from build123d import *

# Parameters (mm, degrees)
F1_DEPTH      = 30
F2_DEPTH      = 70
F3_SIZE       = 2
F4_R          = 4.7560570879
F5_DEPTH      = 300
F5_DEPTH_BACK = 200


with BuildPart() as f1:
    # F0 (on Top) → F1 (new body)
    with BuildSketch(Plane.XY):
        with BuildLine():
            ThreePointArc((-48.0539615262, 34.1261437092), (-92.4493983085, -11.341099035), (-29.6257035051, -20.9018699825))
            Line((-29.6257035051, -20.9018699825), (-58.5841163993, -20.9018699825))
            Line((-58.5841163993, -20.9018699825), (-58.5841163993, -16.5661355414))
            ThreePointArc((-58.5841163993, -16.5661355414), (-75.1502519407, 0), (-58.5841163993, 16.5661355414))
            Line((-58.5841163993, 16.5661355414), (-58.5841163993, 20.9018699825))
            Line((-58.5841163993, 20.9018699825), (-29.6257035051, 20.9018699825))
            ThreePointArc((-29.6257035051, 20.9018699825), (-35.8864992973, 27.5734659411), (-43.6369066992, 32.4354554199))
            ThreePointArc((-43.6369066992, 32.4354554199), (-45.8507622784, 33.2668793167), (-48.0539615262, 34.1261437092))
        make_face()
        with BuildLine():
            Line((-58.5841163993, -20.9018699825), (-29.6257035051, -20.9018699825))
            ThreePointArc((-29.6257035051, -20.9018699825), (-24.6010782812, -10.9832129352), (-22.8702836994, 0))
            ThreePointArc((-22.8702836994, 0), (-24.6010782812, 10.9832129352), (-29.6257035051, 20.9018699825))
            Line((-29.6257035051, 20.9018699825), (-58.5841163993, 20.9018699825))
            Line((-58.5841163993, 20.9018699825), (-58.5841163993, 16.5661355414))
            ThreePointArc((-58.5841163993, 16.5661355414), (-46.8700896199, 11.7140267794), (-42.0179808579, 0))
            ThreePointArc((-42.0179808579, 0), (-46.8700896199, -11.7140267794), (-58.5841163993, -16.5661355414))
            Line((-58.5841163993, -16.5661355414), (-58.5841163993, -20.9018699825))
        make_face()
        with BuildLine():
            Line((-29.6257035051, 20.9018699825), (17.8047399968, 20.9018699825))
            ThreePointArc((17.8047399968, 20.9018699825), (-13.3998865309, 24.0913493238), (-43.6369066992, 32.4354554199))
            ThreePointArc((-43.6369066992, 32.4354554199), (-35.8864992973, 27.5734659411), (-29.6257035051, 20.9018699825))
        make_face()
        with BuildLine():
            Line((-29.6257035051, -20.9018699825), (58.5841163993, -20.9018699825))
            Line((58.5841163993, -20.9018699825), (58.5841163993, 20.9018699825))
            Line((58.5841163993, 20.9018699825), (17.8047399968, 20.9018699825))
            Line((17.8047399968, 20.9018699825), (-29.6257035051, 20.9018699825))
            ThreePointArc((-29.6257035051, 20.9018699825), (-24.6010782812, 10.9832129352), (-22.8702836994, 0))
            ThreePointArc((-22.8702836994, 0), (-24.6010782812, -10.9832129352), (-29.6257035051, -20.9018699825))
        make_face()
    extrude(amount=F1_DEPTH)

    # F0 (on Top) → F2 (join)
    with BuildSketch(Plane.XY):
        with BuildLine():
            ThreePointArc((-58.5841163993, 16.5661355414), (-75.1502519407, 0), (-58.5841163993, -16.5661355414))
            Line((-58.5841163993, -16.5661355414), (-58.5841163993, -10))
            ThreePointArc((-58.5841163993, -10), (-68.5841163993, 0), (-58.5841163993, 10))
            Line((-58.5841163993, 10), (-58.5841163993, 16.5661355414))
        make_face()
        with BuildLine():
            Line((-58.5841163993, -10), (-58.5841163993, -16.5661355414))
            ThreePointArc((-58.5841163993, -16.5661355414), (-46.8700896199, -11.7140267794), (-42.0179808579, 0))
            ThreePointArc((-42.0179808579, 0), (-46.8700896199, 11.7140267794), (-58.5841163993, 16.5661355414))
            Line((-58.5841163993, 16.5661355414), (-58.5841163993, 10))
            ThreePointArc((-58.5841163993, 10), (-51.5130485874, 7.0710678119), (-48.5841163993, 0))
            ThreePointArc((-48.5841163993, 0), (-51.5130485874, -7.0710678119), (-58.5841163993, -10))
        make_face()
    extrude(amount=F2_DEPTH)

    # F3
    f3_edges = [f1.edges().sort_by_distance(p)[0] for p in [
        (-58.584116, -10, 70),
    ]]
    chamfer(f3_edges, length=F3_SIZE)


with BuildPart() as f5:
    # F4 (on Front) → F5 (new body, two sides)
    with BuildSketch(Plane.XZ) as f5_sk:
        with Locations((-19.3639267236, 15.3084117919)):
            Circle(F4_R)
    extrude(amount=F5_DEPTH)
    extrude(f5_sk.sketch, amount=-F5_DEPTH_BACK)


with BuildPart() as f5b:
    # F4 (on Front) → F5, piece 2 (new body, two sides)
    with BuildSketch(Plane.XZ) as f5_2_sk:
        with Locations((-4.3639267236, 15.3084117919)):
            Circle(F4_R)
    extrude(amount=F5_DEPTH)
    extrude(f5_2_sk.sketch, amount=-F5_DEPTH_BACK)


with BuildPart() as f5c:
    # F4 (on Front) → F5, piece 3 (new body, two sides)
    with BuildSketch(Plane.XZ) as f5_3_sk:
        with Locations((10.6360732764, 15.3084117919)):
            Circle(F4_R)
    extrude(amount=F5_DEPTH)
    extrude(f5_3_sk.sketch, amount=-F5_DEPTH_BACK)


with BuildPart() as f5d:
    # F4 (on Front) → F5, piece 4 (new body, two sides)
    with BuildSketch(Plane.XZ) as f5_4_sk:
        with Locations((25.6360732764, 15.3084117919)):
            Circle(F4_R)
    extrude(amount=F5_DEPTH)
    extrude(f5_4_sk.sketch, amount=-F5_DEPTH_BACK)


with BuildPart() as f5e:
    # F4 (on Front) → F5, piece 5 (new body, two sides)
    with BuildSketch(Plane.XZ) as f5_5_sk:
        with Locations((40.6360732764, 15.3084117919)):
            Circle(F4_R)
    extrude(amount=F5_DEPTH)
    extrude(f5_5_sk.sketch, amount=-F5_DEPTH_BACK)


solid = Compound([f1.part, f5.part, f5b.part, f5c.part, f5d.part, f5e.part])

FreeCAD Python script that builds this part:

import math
import FreeCAD as App
import Part
import Sketcher
from FreeCAD import Vector


def edges_at(feature, points):
    """Names of the edges that pass closest to the given points."""
    edges = feature.Shape.Edges
    near = lambda p: min(range(len(edges)), key=lambda i: edges[i].distToShape(Part.Vertex(*p))[0])
    return sorted({f"Edge{near(p) + 1}" for p in points})

doc = App.newDocument("Part")
body = doc.addObject("PartDesign::Body", "Body")

# Sketch on XY plane
sketch1 = body.newObject("Sketcher::SketchObject", "Sketch")
sketch1.AttachmentSupport = (doc.getObject("XY_Plane"), [""])
sketch1.MapMode = "FlatFace"
sketch1.addGeometry([
    Part.ArcOfCircle(Part.Circle(Vector(-58.584116, 0, 0), Vector(0, 0, 1), 35.713833), math.radians(72.851572), math.radians(324.178655)),  # 0
    Part.LineSegment(Vector(-29.625704, -20.90187, 0), Vector(58.584116, -20.90187, 0)),  # 1
    Part.LineSegment(Vector(58.584116, -20.90187, 0), Vector(58.584116, 20.90187, 0)),  # 2
    Part.LineSegment(Vector(58.584116, 20.90187, 0), Vector(17.80474, 20.90187, 0)),  # 3
    Part.ArcOfCircle(Part.Circle(Vector(21.211258, 208.471631, 0), Vector(0, 0, 1), 187.600692), math.radians(-110.222777), math.radians(-91.040454)),  # 4
    Part.ArcOfCircle(Part.Circle(Vector(21.211258, 208.47163, 0), Vector(0, 0, 1), 187.600691), math.radians(-111.667288), math.radians(-110.222777)),  # 5
    Part.ArcOfCircle(Part.Circle(Vector(-58.584116, 0, 0), Vector(0, 0, 1), 16.566136), math.radians(90), math.radians(270)),  # 6
    Part.ArcOfCircle(Part.Circle(Vector(-58.584116, 0, 0), Vector(0, 0, 1), 16.566136), math.radians(0), math.radians(90)),  # 7
    Part.ArcOfCircle(Part.Circle(Vector(-58.584116, 0, 0), Vector(0, 0, 1), 16.566136), math.radians(-90), math.radians(0)),  # 8
], False)
sketch1.addConstraint([
    Sketcher.Constraint("Coincident", 0, 2, 1, 1),
    Sketcher.Constraint("Coincident", 1, 2, 2, 1),
    Sketcher.Constraint("Coincident", 2, 2, 3, 1),
    Sketcher.Constraint("Coincident", 3, 2, 4, 2),
    Sketcher.Constraint("Tangent", 4, 1, 5, 2),
    Sketcher.Constraint("Coincident", 5, 1, 0, 1),
    Sketcher.Constraint("Tangent", 6, 1, 7, 2),
    Sketcher.Constraint("Tangent", 7, 1, 8, 2),
    Sketcher.Constraint("Tangent", 8, 1, 6, 2),
    Sketcher.Constraint("Horizontal", 1),
    Sketcher.Constraint("Vertical", 2),
    Sketcher.Constraint("Horizontal", 3),
    Sketcher.Constraint("Coincident", 6, 3, 0, 3),
    Sketcher.Constraint("Equal", 4, 5),
    Sketcher.Constraint("Symmetric", 6, 1, 8, 1, -1),
    Sketcher.Constraint("PointOnObject", 7, 1, -1),
    Sketcher.Constraint("Vertical", 8, 3, 6, 1),
    Sketcher.Constraint("Radius", 4, 187.600692),
    Sketcher.Constraint("Radius", 0, 35.713833),
    Sketcher.Constraint("Radius", 6, 16.566136),
    Sketcher.Constraint("DistanceX", 1, 1, 1, 2, 88.20982),
    Sketcher.Constraint("DistanceY", 2, 1, 2, 2, 41.80374),
    Sketcher.Constraint("DistanceX", 3, 2, 3, 1, 40.779376),
    Sketcher.Constraint("DistanceX", -1, 1, 4, 3, 21.211258),
    Sketcher.Constraint("DistanceY", -1, 1, 4, 3, 208.471631),
    Sketcher.Constraint("DistanceY", 1, 2, -1, 1, 20.90187),
    Sketcher.Constraint("DistanceX", 0, 3, 4, 1, 14.94721),
])
pad1 = body.newObject("PartDesign::Pad", "Pad")
pad1.Profile = sketch1
pad1.Length = 30

# Sketch on XY plane
sketch2 = body.newObject("Sketcher::SketchObject", "Sketch001")
sketch2.AttachmentSupport = (doc.getObject("XY_Plane"), [""])
sketch2.MapMode = "FlatFace"
sketch2.addGeometry([
    Part.ArcOfCircle(Part.Circle(Vector(-58.584116, 0, 0), Vector(0, 0, 1), 16.566136), math.radians(90), math.radians(270)),  # 0
    Part.ArcOfCircle(Part.Circle(Vector(-58.584116, 0, 0), Vector(0, 0, 1), 16.566136), math.radians(-90), math.radians(0)),  # 1
    Part.ArcOfCircle(Part.Circle(Vector(-58.584116, 0, 0), Vector(0, 0, 1), 16.566136), math.radians(0), math.radians(90)),  # 2
    Part.ArcOfCircle(Part.Circle(Vector(-58.584116, 0, 0), Vector(0, 0, 1), 10), math.radians(90), math.radians(270)),  # 3
    Part.ArcOfCircle(Part.Circle(Vector(-58.584116, 0, 0), Vector(0, 0, 1), 10), math.radians(0), math.radians(90)),  # 4
    Part.ArcOfCircle(Part.Circle(Vector(-58.584116, 0, 0), Vector(0, 0, 1), 10), math.radians(-90), math.radians(0)),  # 5
], False)
sketch2.addConstraint([
    Sketcher.Constraint("Tangent", 0, 2, 1, 1),
    Sketcher.Constraint("Tangent", 1, 2, 2, 1),
    Sketcher.Constraint("Tangent", 2, 2, 0, 1),
    Sketcher.Constraint("Tangent", 3, 1, 4, 2),
    Sketcher.Constraint("Tangent", 4, 1, 5, 2),
    Sketcher.Constraint("Tangent", 5, 1, 3, 2),
    Sketcher.Constraint("Coincident", 3, 3, 0, 3),
    Sketcher.Constraint("Symmetric", 0, 2, 2, 2, -1),
    Sketcher.Constraint("PointOnObject", 1, 2, -1),
    Sketcher.Constraint("PointOnObject", 4, 1, -1),
    Sketcher.Constraint("Vertical", 5, 3, 0, 2),
    Sketcher.Constraint("Vertical", 2, 2, 3, 1),
    Sketcher.Constraint("Vertical", 3, 1, 5, 1),
    Sketcher.Constraint("Radius", 3, 10.0),
    Sketcher.Constraint("Radius", 0, 16.566136),
    Sketcher.Constraint("DistanceX", 1, 2, -1, 1, 42.017981),
])
pad2 = body.newObject("PartDesign::Pad", "Pad001")
pad2.Profile = sketch2
pad2.Length = 70
doc.recompute()

chamfer = body.newObject("PartDesign::Chamfer", "Chamfer")
chamfer.Base = (pad2, edges_at(pad2, [(-51.513, -7.071, 70)]))
chamfer.Size = 2
body2 = doc.addObject("PartDesign::Body", "Body001")

# Sketch on XZ plane
sketch3 = body2.newObject("Sketcher::SketchObject", "Sketch002")
sketch3.AttachmentSupport = (doc.getObject("XZ_Plane001"), [""])
sketch3.MapMode = "FlatFace"
sketch3.addGeometry(Part.Circle(Vector(-19.363927, 15.308412, 0), Vector(0, 0, 1), 4.756057), False)
sketch3.addConstraint([
    Sketcher.Constraint("Diameter", 0, 9.512114),
    Sketcher.Constraint("DistanceY", -1, 1, 0, 3, 15.308412),
    Sketcher.Constraint("DistanceX", 0, 3, -1, 1, 19.363927),
])
pad3 = body2.newObject("PartDesign::Pad", "Pad002")
pad3.Profile = sketch3
pad3.Type = "TwoLengths"
pad3.Length = 300
pad3.Length2 = 200
body3 = doc.addObject("PartDesign::Body", "Body002")

# Sketch on XZ plane
sketch4 = body3.newObject("Sketcher::SketchObject", "Sketch003")
sketch4.AttachmentSupport = (doc.getObject("XZ_Plane002"), [""])
sketch4.MapMode = "FlatFace"
sketch4.addGeometry(Part.Circle(Vector(-4.363927, 15.308412, 0), Vector(0, 0, 1), 4.756057), False)
sketch4.addConstraint([
    Sketcher.Constraint("Diameter", 0, 9.512114),
    Sketcher.Constraint("DistanceY", -1, 1, 0, 3, 15.308412),
    Sketcher.Constraint("DistanceX", 0, 3, -1, 1, 4.363927),
])
pad4 = body3.newObject("PartDesign::Pad", "Pad003")
pad4.Profile = sketch4
pad4.Type = "TwoLengths"
pad4.Length = 300
pad4.Length2 = 200
body4 = doc.addObject("PartDesign::Body", "Body003")

# Sketch on XZ plane
sketch5 = body4.newObject("Sketcher::SketchObject", "Sketch004")
sketch5.AttachmentSupport = (doc.getObject("XZ_Plane003"), [""])
sketch5.MapMode = "FlatFace"
sketch5.addGeometry(Part.Circle(Vector(10.636073, 15.308412, 0), Vector(0, 0, 1), 4.756057), False)
sketch5.addConstraint([
    Sketcher.Constraint("Diameter", 0, 9.512114),
    Sketcher.Constraint("DistanceY", -1, 1, 0, 3, 15.308412),
    Sketcher.Constraint("DistanceX", -1, 1, 0, 3, 10.636073),
])
pad5 = body4.newObject("PartDesign::Pad", "Pad004")
pad5.Profile = sketch5
pad5.Type = "TwoLengths"
pad5.Length = 300
pad5.Length2 = 200
body5 = doc.addObject("PartDesign::Body", "Body004")

# Sketch on XZ plane
sketch6 = body5.newObject("Sketcher::SketchObject", "Sketch005")
sketch6.AttachmentSupport = (doc.getObject("XZ_Plane004"), [""])
sketch6.MapMode = "FlatFace"
sketch6.addGeometry(Part.Circle(Vector(25.636073, 15.308412, 0), Vector(0, 0, 1), 4.756057), False)
sketch6.addConstraint([
    Sketcher.Constraint("Diameter", 0, 9.512114),
    Sketcher.Constraint("DistanceY", -1, 1, 0, 3, 15.308412),
    Sketcher.Constraint("DistanceX", -1, 1, 0, 3, 25.636073),
])
pad6 = body5.newObject("PartDesign::Pad", "Pad005")
pad6.Profile = sketch6
pad6.Type = "TwoLengths"
pad6.Length = 300
pad6.Length2 = 200
body6 = doc.addObject("PartDesign::Body", "Body005")

# Sketch on XZ plane
sketch7 = body6.newObject("Sketcher::SketchObject", "Sketch006")
sketch7.AttachmentSupport = (doc.getObject("XZ_Plane005"), [""])
sketch7.MapMode = "FlatFace"
sketch7.addGeometry(Part.Circle(Vector(40.636073, 15.308412, 0), Vector(0, 0, 1), 4.756057), False)
sketch7.addConstraint([
    Sketcher.Constraint("Diameter", 0, 9.512114),
    Sketcher.Constraint("DistanceY", -1, 1, 0, 3, 15.308412),
    Sketcher.Constraint("DistanceX", -1, 1, 0, 3, 40.636073),
])
pad7 = body6.newObject("PartDesign::Pad", "Pad006")
pad7.Profile = sketch7
pad7.Type = "TwoLengths"
pad7.Length = 300
pad7.Length2 = 200

doc.recompute()
